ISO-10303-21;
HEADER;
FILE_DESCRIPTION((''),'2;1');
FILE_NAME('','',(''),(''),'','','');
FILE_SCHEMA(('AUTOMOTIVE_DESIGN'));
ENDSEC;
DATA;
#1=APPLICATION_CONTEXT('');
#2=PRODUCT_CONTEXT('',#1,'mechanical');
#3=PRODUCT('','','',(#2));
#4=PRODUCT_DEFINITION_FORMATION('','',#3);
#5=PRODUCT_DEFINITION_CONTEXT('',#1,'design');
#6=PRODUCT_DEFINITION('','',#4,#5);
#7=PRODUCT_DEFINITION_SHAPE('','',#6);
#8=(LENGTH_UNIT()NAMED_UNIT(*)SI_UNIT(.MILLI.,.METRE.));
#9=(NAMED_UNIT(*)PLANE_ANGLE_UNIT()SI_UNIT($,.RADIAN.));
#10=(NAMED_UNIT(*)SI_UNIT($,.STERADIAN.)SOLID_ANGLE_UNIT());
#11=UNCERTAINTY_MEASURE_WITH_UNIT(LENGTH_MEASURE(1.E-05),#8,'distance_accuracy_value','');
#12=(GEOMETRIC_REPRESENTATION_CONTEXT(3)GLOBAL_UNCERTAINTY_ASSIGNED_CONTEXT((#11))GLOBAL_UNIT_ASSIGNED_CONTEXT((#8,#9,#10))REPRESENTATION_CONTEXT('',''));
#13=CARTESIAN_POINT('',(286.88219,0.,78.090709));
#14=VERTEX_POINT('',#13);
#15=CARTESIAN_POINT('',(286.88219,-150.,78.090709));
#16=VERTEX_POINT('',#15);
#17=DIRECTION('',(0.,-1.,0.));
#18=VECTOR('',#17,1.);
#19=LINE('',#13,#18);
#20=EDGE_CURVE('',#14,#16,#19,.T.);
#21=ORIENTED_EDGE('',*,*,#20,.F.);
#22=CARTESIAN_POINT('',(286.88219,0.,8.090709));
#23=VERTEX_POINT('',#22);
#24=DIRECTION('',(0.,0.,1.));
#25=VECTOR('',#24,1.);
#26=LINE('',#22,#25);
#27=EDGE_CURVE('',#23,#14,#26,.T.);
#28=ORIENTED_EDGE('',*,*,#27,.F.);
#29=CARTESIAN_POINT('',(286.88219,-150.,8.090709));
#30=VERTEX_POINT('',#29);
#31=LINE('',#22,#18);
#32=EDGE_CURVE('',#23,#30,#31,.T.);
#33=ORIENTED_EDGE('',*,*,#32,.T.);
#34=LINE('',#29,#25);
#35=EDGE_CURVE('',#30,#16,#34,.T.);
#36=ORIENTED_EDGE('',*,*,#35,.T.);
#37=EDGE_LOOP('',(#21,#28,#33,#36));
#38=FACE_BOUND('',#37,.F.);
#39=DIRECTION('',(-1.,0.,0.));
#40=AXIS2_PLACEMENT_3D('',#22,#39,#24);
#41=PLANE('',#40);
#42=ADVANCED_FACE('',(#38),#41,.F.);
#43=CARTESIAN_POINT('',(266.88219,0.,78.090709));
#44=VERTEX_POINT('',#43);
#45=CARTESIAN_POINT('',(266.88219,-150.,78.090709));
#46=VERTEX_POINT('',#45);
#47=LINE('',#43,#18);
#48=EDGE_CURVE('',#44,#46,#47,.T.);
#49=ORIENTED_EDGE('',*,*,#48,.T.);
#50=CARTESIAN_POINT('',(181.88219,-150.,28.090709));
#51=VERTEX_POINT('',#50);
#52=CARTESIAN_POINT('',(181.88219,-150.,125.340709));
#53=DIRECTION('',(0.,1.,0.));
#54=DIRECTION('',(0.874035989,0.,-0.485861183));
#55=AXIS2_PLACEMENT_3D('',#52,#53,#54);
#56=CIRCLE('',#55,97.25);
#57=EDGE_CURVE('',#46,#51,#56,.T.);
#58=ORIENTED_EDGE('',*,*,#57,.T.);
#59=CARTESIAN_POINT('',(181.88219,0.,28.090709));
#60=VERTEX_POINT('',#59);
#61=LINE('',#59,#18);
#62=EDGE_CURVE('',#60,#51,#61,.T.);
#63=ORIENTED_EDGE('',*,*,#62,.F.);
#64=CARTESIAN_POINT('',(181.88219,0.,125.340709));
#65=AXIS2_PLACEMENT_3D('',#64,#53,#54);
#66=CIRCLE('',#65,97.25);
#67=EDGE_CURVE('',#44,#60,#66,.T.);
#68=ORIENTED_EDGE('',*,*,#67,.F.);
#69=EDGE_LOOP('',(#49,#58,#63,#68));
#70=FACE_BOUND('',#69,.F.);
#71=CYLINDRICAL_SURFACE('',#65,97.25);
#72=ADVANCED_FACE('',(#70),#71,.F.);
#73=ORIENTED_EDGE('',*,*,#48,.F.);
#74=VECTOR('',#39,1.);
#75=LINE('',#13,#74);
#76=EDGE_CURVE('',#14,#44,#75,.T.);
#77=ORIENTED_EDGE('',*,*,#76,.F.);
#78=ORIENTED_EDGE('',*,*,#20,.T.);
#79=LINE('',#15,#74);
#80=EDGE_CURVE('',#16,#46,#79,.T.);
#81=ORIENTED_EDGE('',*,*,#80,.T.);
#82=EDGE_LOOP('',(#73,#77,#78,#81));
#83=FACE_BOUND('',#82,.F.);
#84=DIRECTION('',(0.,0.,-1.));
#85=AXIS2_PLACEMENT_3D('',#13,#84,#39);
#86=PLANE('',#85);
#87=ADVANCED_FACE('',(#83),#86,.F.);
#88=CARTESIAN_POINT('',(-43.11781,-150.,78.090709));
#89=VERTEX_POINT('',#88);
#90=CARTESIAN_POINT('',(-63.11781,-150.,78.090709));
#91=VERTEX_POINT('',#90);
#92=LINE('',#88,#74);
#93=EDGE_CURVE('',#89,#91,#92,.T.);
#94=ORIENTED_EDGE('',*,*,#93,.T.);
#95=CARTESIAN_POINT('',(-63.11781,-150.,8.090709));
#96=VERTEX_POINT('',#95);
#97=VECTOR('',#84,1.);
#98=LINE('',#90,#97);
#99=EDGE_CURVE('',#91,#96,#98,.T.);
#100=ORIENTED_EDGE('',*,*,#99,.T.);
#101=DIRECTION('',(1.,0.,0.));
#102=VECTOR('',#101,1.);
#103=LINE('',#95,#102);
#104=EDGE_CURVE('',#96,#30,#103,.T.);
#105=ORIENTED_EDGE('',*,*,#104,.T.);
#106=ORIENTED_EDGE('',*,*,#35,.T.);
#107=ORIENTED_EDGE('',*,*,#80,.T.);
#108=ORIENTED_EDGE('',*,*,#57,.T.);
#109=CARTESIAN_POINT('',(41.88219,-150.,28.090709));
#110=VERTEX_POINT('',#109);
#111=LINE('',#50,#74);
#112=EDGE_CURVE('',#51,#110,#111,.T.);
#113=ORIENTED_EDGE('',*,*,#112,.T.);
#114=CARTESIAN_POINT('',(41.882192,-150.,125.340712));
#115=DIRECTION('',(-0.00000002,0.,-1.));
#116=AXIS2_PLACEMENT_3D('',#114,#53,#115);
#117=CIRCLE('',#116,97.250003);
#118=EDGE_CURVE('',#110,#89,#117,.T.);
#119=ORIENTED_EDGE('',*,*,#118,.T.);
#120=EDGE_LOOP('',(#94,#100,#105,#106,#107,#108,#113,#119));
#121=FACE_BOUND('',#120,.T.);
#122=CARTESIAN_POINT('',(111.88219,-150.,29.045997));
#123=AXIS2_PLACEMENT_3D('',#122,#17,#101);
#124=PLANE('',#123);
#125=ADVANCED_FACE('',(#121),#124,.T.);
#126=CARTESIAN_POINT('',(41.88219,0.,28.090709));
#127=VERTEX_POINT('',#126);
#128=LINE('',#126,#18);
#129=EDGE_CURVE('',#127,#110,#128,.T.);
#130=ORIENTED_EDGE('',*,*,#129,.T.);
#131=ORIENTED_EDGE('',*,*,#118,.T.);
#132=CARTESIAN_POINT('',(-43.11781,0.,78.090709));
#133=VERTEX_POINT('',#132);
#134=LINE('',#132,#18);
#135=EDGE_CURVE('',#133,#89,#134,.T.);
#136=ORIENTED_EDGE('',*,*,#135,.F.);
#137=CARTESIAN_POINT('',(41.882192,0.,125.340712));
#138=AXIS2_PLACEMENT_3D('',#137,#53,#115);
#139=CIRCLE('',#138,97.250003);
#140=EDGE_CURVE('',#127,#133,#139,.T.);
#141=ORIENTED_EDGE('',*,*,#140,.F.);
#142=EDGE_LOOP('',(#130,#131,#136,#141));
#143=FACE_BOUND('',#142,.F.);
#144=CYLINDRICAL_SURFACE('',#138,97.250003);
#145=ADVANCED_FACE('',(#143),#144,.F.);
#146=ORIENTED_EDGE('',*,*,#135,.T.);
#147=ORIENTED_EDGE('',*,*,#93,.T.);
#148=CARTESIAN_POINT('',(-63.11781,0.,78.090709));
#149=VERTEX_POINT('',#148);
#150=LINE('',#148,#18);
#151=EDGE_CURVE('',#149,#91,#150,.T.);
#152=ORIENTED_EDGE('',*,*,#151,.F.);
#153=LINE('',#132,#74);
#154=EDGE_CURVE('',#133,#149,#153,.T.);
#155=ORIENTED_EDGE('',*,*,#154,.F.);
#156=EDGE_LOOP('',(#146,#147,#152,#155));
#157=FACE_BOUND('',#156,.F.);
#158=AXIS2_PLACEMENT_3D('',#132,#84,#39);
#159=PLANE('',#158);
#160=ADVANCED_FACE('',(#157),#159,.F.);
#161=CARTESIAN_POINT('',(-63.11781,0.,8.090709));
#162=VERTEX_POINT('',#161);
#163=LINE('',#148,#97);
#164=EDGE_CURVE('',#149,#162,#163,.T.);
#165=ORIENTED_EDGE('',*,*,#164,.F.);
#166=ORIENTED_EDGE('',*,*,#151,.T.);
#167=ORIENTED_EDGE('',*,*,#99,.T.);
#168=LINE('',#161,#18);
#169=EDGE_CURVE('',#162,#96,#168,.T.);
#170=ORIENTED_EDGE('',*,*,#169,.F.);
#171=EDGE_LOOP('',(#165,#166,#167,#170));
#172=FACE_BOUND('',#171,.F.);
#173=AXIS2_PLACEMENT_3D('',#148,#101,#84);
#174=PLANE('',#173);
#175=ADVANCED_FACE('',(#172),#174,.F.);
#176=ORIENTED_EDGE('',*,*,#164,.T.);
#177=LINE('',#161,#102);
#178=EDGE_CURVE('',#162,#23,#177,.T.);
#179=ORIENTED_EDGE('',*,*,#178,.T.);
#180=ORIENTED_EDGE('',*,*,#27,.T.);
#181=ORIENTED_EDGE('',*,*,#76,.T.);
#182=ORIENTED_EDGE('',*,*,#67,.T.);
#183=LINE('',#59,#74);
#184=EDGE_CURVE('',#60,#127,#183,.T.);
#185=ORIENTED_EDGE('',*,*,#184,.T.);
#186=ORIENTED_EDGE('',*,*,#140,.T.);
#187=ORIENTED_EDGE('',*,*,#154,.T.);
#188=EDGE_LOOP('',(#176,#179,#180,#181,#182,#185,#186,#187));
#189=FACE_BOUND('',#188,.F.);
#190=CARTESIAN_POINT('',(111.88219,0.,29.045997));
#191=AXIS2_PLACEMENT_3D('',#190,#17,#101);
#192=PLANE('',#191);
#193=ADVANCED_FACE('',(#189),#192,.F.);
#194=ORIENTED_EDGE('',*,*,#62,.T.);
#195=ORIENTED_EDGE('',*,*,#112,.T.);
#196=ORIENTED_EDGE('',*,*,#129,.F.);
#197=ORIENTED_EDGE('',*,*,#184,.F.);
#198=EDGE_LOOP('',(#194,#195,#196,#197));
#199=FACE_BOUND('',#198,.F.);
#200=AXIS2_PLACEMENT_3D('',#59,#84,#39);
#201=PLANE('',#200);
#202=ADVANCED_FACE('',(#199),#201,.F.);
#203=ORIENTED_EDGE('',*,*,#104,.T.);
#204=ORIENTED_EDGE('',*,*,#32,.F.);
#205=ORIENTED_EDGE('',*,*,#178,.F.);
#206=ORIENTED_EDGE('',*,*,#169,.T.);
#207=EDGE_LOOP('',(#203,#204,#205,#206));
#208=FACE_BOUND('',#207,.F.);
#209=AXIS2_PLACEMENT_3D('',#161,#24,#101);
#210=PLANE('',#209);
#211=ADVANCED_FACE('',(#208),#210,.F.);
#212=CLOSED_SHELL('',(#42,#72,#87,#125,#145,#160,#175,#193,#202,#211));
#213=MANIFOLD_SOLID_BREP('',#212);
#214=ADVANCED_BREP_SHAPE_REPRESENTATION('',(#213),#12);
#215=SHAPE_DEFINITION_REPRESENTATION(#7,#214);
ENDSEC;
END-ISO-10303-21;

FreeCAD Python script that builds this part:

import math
import FreeCAD as App
import Part
import Sketcher

doc = App.newDocument("Part")
body = doc.addObject("PartDesign::Body", "Body")

sketch1 = doc.addObject("Sketcher::SketchObject", "Sketch")
body.addObject(sketch1)
sketch1.AttachmentSupport = (doc.XZ_Plane, [""])
sketch1.MapMode = "FlatFace"
sketch1.addGeometry(Part.LineSegment(App.Vector(-43.11781, 78.090709, 0), App.Vector(-63.11781, 78.090709, 0)), False)
sketch1.addGeometry(Part.LineSegment(App.Vector(-63.11781, 78.090709, 0), App.Vector(-63.11781, 8.090709, 0)), False)
sketch1.addGeometry(Part.LineSegment(App.Vector(-63.11781, 8.090709, 0), App.Vector(286.88219, 8.090709, 0)), False)
sketch1.addGeometry(Part.LineSegment(App.Vector(286.88219, 8.090709, 0), App.Vector(286.88219, 78.090709, 0)), False)
sketch1.addGeometry(Part.LineSegment(App.Vector(286.88219, 78.090709, 0), App.Vector(266.88219, 78.090709, 0)), False)
sketch1.addGeometry(Part.ArcOfCircle(Part.Circle(App.Vector(181.88219, 125.340709, 0), App.Vector(0, 0, 1), 97.25), math.radians(-90), math.radians(-29.06891)), False)
sketch1.addGeometry(Part.LineSegment(App.Vector(181.88219, 28.090709, 0), App.Vector(41.88219, 28.090709, 0)), False)
sketch1.addGeometry(Part.ArcOfCircle(Part.Circle(App.Vector(41.882192, 125.340712, 0), App.Vector(0, 0, 1), 97.250003), math.radians(-150.931089), math.radians(-90.000001)), False)
sketch1.addConstraint(Sketcher.Constraint("Coincident", 0, 2, 1, 1))
sketch1.addConstraint(Sketcher.Constraint("Coincident", 1, 2, 2, 1))
sketch1.addConstraint(Sketcher.Constraint("Coincident", 2, 2, 3, 1))
sketch1.addConstraint(Sketcher.Constraint("Coincident", 3, 2, 4, 1))
sketch1.addConstraint(Sketcher.Constraint("Coincident", 4, 2, 5, 2))
sketch1.addConstraint(Sketcher.Constraint("Tangent", 5, 1, 6, 1))
sketch1.addConstraint(Sketcher.Constraint("Tangent", 6, 2, 7, 2))
sketch1.addConstraint(Sketcher.Constraint("Coincident", 7, 1, 0, 1))
sketch1.addConstraint(Sketcher.Constraint("Horizontal", 0))
sketch1.addConstraint(Sketcher.Constraint("Vertical", 1))
sketch1.addConstraint(Sketcher.Constraint("Horizontal", 2))
sketch1.addConstraint(Sketcher.Constraint("Vertical", 3))
sketch1.addConstraint(Sketcher.Constraint("Horizontal", 4))
sketch1.addConstraint(Sketcher.Constraint("Horizontal", 6))
sketch1.addConstraint(Sketcher.Constraint("Horizontal", 0, 2, 3, 2))
sketch1.addConstraint(Sketcher.Constraint("Equal", 0, 4))
sketch1.addConstraint(Sketcher.Constraint("DistanceX", 0, 2, 0, 1, 20.0))
sketch1.addConstraint(Sketcher.Constraint("DistanceX", 2, 1, 2, 2, 350.0))
sketch1.addConstraint(Sketcher.Constraint("DistanceX", 6, 2, 6, 1, 140.0))
sketch1.addConstraint(Sketcher.Constraint("DistanceY", 1, 2, 1, 1, 70.0))
sketch1.addConstraint(Sketcher.Constraint("Radius", 5, 97.25))
sketch1.addConstraint(Sketcher.Constraint("DistanceX", 0, 2, 7, 3, 105.000002))
sketch1.addConstraint(Sketcher.Constraint("DistanceX", -1, 1, 5, 3, 181.88219))
sketch1.addConstraint(Sketcher.Constraint("DistanceY", -1, 1, 5, 3, 125.340709))
pad1 = doc.addObject("PartDesign::Pad", "Pad")
body.addObject(pad1)
pad1.Profile = sketch1
pad1.Length = 150

doc.recompute()
